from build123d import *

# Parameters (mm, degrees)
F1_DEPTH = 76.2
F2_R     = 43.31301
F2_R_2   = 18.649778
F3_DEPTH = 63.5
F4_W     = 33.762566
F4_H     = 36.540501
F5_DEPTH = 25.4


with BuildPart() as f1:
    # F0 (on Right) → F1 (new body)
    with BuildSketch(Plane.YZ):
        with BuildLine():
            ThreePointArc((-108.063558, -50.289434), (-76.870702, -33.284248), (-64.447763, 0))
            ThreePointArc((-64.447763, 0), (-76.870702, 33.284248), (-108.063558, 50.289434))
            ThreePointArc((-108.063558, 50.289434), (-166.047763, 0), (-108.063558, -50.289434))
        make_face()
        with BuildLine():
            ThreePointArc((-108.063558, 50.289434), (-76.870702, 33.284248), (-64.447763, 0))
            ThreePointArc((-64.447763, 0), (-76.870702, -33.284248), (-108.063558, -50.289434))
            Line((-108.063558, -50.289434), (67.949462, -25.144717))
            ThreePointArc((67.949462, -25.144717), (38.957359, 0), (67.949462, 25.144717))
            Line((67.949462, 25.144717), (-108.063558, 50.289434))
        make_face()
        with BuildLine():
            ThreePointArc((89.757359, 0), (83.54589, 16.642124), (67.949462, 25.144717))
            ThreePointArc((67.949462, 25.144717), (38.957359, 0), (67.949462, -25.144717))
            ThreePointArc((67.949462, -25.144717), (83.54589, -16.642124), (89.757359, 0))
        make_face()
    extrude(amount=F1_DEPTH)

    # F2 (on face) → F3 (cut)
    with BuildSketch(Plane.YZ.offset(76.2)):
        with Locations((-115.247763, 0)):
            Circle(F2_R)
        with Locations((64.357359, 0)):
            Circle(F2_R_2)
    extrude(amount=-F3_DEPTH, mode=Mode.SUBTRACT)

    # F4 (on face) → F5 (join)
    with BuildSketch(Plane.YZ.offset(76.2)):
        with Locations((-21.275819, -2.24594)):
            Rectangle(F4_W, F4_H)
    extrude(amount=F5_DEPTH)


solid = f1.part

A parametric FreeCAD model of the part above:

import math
import FreeCAD as App
import Part
import Sketcher
Q = App.Units.Quantity

doc = App.newDocument("Part")
params = doc.addObject("Spreadsheet::Sheet", "Params")
for row, (alias, value) in enumerate([
    ("sketch1_radius", "2 in"),
    ("sketch1_radius2", "1 in"),
    ("sketch1_length", "7 in"),
    ("pad1_length", "3 in"),
    ("pocket1_length", "2.5 in"),
    ("pad2_length", "1 in"),
], start=1):
    params.set(f"A{row}", alias)
    params.set(f"B{row}", "=" + value)
    params.setAlias(f"B{row}", alias)

body = doc.addObject("PartDesign::Body", "Body")

sketch1 = doc.addObject("Sketcher::SketchObject", "Sketch")
body.addObject(sketch1)
sketch1.AttachmentSupport = (doc.YZ_Plane, [""])
sketch1.MapMode = "FlatFace"
sketch1.addGeometry([
    Part.ArcOfCircle(Part.Circle(App.Vector(-115, 0, 0), App.Vector(0, 0, 1), 51), math.radians(82), math.radians(278)),
    Part.LineSegment(App.Vector(-108, -50, 0), App.Vector(68, -25, 0)),
    Part.ArcOfCircle(Part.Circle(App.Vector(64, 0, 0), App.Vector(0, 0, 1), 25), math.radians(-82), math.radians(0)),
    Part.ArcOfCircle(Part.Circle(App.Vector(64, 0, 0), App.Vector(0, 0, 1), 25), math.radians(0), math.radians(82)),
    Part.LineSegment(App.Vector(68, 25, 0), App.Vector(-108, 50, 0)),
], False)
sketch1.addConstraint([
    Sketcher.Constraint("Tangent", 0, 2, 1, 1),
    Sketcher.Constraint("Tangent", 1, 2, 2, 1),
    Sketcher.Constraint("Tangent", 2, 2, 3, 1),
    Sketcher.Constraint("Tangent", 3, 2, 4, 1),
    Sketcher.Constraint("Tangent", 4, 2, 0, 1),
    Sketcher.Constraint("Equal", 2, 3),
    Sketcher.Constraint("Symmetric", 1, 2, 3, 2, -1),
    Sketcher.Constraint("PointOnObject", 2, 2, -1),
    Sketcher.Constraint("Radius", 0, Q("2 in")),
    Sketcher.Constraint("Radius", 2, Q("1 in")),
    Sketcher.Constraint("Distance", 1, Q("7 in")),
    Sketcher.Constraint("DistanceX", -1, 1, 2, 3, 64.35736),
])
sketch1.setExpression("Constraints[8]", "Params.sketch1_radius")
sketch1.setExpression("Constraints[9]", "Params.sketch1_radius2")
sketch1.setExpression("Constraints[10]", "Params.sketch1_length")
pad1 = doc.addObject("PartDesign::Pad", "Pad")
body.addObject(pad1)
pad1.Profile = sketch1
pad1.setExpression("Length", "Params.pad1_length")

sketch2 = doc.addObject("Sketcher::SketchObject", "Sketch001")
body.addObject(sketch2)
sketch2.AttachmentSupport = (doc.YZ_Plane, [""])
sketch2.MapMode = "FlatFace"
sketch2.AttachmentOffset = App.Placement(App.Vector(0, 0, 3 * 25.4), App.Rotation())
sketch2.addGeometry([
    Part.Circle(App.Vector(-115, 0, 0), App.Vector(0, 0, 1), 43),
    Part.Circle(App.Vector(64, 0, 0), App.Vector(0, 0, 1), 19),
], False)
sketch2.addConstraint([
    Sketcher.Constraint("PointOnObject", 0, 3, -1),
    Sketcher.Constraint("PointOnObject", 1, 3, -1),
    Sketcher.Constraint("Diameter", 0, 86.62602),
    Sketcher.Constraint("Diameter", 1, 37.299556),
    Sketcher.Constraint("DistanceX", -1, 1, 1, 3, 64.357359),
    Sketcher.Constraint("DistanceX", 0, 3, 1, 3, 179.605122),
])
pocket1 = doc.addObject("PartDesign::Pocket", "Pocket")
body.addObject(pocket1)
pocket1.Profile = sketch2
pocket1.setExpression("Length", "Params.pocket1_length")

sketch3 = doc.addObject("Sketcher::SketchObject", "Sketch002")
body.addObject(sketch3)
sketch3.AttachmentSupport = (doc.YZ_Plane, [""])
sketch3.MapMode = "FlatFace"
sketch3.AttachmentOffset = App.Placement(App.Vector(0, 0, 3 * 25.4), App.Rotation())
sketch3.addGeometry([
    Part.LineSegment(App.Vector(-38, 16, 0), App.Vector(-38, -21, 0)),
    Part.LineSegment(App.Vector(-38, -21, 0), App.Vector(-4, -21, 0)),
    Part.LineSegment(App.Vector(-4, -21, 0), App.Vector(-4, 16, 0)),
    Part.LineSegment(App.Vector(-4, 16, 0), App.Vector(-38, 16, 0)),
], False)
sketch3.addConstraint([
    Sketcher.Constraint("Coincident", 0, 2, 1, 1),
    Sketcher.Constraint("Coincident", 1, 2, 2, 1),
    Sketcher.Constraint("Coincident", 2, 2, 3, 1),
    Sketcher.Constraint("Coincident", 3, 2, 0, 1),
    Sketcher.Constraint("Vertical", 0),
    Sketcher.Constraint("Horizontal", 1),
    Sketcher.Constraint("Vertical", 2),
    Sketcher.Constraint("Horizontal", 3),
    Sketcher.Constraint("DistanceY", 0, 2, 0, 1, 36.540501),
    Sketcher.Constraint("DistanceX", 1, 1, 1, 2, 33.762566),
    Sketcher.Constraint("DistanceY", 0, 2, -1, 1, 20.516191),
    Sketcher.Constraint("DistanceX", 0, 2, -1, 1, 38.157102),
])
pad2 = doc.addObject("PartDesign::Pad", "Pad001")
body.addObject(pad2)
pad2.Profile = sketch3
pad2.setExpression("Length", "Params.pad2_length")

doc.recompute()
